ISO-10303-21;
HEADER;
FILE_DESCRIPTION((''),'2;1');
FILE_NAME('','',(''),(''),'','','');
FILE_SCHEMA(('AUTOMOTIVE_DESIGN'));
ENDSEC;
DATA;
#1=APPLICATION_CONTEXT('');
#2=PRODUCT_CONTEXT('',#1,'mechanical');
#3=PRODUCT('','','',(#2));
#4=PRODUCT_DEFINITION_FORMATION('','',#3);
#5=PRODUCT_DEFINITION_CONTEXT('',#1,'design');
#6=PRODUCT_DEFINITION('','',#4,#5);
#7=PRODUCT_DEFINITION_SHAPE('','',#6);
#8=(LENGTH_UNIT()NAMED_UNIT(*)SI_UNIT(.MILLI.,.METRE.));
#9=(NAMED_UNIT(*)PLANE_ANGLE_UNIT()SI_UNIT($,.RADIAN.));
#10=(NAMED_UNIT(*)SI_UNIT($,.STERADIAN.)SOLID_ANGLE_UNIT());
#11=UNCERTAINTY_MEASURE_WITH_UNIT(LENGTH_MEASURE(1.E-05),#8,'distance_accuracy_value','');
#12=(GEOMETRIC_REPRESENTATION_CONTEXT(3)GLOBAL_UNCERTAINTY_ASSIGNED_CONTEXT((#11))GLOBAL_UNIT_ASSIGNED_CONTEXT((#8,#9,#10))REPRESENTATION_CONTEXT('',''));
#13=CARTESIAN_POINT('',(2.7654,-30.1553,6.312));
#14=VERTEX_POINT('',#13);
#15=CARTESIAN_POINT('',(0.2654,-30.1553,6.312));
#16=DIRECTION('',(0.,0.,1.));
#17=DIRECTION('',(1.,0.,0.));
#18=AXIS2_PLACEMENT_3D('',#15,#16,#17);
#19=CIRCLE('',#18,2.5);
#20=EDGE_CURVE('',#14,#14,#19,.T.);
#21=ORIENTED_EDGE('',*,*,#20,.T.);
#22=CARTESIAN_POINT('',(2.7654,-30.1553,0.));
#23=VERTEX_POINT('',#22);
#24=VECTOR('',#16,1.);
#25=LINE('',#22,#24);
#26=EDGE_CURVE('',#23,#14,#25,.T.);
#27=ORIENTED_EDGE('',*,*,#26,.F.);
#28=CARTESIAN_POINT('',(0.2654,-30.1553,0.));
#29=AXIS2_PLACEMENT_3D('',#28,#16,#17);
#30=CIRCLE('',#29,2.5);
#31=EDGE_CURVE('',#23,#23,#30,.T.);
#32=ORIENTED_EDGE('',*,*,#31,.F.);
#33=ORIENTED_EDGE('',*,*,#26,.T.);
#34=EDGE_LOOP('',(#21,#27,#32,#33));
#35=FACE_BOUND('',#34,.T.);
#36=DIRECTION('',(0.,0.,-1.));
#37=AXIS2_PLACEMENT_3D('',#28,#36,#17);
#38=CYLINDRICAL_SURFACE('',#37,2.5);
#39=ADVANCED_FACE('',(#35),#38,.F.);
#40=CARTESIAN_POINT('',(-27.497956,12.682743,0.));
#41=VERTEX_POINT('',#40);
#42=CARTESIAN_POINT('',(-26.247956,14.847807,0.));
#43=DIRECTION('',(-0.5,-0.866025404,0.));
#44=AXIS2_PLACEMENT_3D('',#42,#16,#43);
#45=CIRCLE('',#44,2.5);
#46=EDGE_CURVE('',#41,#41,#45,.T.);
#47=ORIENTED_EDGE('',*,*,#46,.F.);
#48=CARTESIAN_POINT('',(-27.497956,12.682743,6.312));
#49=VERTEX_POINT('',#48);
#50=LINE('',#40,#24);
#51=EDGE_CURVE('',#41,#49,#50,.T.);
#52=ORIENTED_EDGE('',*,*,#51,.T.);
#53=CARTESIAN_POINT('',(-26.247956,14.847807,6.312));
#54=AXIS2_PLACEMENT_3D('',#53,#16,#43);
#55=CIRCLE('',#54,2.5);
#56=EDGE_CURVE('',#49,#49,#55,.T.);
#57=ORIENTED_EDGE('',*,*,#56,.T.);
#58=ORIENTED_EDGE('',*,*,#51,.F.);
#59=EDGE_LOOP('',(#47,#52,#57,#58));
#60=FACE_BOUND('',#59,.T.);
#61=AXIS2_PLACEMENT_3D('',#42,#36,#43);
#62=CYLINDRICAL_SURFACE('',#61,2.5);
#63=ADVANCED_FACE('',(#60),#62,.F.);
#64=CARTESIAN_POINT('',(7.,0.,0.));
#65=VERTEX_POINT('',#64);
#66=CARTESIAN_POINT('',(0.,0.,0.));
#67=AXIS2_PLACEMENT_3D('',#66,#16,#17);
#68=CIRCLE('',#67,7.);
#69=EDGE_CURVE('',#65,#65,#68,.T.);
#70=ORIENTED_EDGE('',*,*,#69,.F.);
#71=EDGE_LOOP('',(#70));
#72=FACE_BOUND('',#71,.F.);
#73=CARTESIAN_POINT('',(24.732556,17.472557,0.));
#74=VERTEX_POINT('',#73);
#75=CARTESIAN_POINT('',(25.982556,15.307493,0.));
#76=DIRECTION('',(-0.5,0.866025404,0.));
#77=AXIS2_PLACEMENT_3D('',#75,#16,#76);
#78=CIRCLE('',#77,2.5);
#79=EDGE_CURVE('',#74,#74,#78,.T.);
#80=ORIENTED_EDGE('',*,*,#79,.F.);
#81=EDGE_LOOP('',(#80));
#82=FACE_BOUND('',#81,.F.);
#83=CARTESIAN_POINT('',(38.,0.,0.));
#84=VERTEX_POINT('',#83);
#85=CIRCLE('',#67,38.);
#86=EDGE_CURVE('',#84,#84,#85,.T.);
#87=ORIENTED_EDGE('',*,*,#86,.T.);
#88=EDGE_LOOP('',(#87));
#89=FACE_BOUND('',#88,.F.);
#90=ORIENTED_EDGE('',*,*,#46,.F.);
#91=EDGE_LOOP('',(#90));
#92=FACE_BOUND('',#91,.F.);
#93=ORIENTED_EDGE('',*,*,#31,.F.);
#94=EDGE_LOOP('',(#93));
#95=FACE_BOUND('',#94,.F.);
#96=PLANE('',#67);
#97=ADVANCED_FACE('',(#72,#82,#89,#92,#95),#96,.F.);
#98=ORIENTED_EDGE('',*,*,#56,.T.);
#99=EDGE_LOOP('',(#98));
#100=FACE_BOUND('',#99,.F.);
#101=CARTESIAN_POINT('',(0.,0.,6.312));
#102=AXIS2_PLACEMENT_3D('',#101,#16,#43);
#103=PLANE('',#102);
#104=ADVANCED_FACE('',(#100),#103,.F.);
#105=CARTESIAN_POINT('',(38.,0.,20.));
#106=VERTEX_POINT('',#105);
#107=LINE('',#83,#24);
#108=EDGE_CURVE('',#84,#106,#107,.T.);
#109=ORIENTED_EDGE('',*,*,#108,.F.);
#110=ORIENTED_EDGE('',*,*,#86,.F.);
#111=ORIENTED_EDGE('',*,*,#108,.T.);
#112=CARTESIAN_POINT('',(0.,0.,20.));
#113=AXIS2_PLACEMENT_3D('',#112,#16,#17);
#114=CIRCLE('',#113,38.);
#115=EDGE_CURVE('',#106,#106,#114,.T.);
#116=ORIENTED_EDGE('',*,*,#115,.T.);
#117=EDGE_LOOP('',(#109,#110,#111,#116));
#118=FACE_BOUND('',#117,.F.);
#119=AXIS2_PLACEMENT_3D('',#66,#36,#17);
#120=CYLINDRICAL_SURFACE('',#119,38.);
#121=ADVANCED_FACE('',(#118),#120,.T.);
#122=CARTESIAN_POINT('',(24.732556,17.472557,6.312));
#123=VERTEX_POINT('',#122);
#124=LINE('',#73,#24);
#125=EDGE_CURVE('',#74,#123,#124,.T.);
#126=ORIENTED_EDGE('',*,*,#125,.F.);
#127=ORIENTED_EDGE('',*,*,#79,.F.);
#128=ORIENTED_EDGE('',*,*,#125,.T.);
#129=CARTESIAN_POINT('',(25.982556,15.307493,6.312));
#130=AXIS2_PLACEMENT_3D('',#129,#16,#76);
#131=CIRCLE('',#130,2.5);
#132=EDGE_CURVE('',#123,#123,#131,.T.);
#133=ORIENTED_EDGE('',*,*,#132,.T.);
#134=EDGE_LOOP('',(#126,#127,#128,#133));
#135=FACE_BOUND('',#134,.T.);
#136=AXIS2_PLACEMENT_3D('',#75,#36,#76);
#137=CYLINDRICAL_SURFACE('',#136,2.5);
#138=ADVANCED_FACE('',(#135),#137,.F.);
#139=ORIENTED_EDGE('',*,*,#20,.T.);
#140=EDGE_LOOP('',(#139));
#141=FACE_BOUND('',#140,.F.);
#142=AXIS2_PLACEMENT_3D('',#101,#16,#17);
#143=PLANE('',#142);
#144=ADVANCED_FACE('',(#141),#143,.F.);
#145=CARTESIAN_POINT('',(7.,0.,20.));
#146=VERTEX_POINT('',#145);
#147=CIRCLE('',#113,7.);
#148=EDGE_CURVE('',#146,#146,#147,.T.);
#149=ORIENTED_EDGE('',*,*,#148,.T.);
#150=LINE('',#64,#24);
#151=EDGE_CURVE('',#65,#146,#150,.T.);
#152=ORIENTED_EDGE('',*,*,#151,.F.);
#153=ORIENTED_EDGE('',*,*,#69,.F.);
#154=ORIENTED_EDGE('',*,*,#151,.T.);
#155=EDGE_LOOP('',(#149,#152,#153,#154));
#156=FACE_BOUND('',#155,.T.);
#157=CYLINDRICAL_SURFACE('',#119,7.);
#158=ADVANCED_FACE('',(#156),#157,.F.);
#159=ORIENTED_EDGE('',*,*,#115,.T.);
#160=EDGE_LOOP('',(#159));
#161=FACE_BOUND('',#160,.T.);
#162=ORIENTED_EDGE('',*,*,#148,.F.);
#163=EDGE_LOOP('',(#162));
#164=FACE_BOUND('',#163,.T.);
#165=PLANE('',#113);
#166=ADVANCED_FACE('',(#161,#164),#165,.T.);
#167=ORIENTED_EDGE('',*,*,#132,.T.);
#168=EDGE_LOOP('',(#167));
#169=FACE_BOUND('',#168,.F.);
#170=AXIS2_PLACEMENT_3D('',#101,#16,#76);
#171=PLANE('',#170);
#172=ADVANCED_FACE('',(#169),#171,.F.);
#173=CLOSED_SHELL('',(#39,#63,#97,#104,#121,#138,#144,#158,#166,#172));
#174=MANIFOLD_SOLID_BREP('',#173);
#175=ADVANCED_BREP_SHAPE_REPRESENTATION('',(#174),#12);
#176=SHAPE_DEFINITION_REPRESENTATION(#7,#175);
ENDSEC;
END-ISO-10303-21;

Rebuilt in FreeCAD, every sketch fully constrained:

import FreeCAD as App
import Part
import Sketcher
from FreeCAD import Vector
Q = App.Units.Quantity

doc = App.newDocument("Part")
body = doc.addObject("PartDesign::Body", "Body")

# Sketch on XY plane
sketch1 = doc.addObject("Sketcher::SketchObject", "Sketch")
body.addObject(sketch1)
sketch1.AttachmentSupport = (doc.XY_Plane, [""])
sketch1.MapMode = "FlatFace"
sketch1.addGeometry([
    Part.Circle(Vector(0, 0, 0), Vector(0, 0, 1), 22.5),
    Part.Circle(Vector(0, 0, 0), Vector(0, 0, 1), 7),
], False)
sketch1.addConstraint([
    Sketcher.Constraint("Coincident", 0, 3, -1, 1),
    Sketcher.Constraint("Coincident", 1, 3, -1, 1),
    Sketcher.Constraint("Diameter", 0, Q("45 mm")),
    Sketcher.Constraint("Diameter", 1, Q("14 mm")),
])
pad1 = doc.addObject("PartDesign::Pad", "Pad")
body.addObject(pad1)
pad1.Profile = sketch1
pad1.Length = 20

# Sketch on XY plane
sketch2 = doc.addObject("Sketcher::SketchObject", "Sketch001")
body.addObject(sketch2)
sketch2.AttachmentSupport = (doc.XY_Plane, [""])
sketch2.MapMode = "FlatFace"
sketch2.addGeometry([
    Part.Circle(Vector(0, 0, 0), Vector(0, 0, 1), 38),
    Part.Circle(Vector(0, 0, 0), Vector(0, 0, 1), 7),
], False)
sketch2.addConstraint([
    Sketcher.Constraint("Coincident", 0, 3, -1, 1),
    Sketcher.Constraint("Coincident", 1, 3, -1, 1),
    Sketcher.Constraint("Diameter", 0, Q("76 mm")),
    Sketcher.Constraint("Diameter", 1, Q("14 mm")),
])
pad2 = doc.addObject("PartDesign::Pad", "Pad001")
body.addObject(pad2)
pad2.Profile = sketch2
pad2.Length = 20

# Sketch on XY plane
sketch3 = doc.addObject("Sketcher::SketchObject", "Sketch002")
body.addObject(sketch3)
sketch3.AttachmentSupport = (doc.XY_Plane, [""])
sketch3.MapMode = "FlatFace"
sketch3.addGeometry(Part.Circle(Vector(0.2654, -30.1553, 0), Vector(0, 0, 1), 2.5), False)
sketch3.addConstraint([
    Sketcher.Constraint("Diameter", 0, Q("5 mm")),
    Sketcher.Constraint("DistanceX", -1, 1, 0, 3, Q("0.2654 mm")),
    Sketcher.Constraint("DistanceY", 0, 3, -1, 1, Q("30.1553 mm")),
])
pocket1 = doc.addObject("PartDesign::Pocket", "Pocket")
body.addObject(pocket1)
pocket1.Profile = sketch3
pocket1.Length = 6.312
pocket1.Reversed = True
doc.recompute()

polarpattern = doc.addObject("PartDesign::PolarPattern", "PolarPattern")
body.addObject(polarpattern)
polarpattern.Originals = [pocket1]
polarpattern.Axis = (doc.Z_Axis, [""])
polarpattern.Angle = 360
polarpattern.Occurrences = 3
body.Tip = polarpattern

doc.recompute()
